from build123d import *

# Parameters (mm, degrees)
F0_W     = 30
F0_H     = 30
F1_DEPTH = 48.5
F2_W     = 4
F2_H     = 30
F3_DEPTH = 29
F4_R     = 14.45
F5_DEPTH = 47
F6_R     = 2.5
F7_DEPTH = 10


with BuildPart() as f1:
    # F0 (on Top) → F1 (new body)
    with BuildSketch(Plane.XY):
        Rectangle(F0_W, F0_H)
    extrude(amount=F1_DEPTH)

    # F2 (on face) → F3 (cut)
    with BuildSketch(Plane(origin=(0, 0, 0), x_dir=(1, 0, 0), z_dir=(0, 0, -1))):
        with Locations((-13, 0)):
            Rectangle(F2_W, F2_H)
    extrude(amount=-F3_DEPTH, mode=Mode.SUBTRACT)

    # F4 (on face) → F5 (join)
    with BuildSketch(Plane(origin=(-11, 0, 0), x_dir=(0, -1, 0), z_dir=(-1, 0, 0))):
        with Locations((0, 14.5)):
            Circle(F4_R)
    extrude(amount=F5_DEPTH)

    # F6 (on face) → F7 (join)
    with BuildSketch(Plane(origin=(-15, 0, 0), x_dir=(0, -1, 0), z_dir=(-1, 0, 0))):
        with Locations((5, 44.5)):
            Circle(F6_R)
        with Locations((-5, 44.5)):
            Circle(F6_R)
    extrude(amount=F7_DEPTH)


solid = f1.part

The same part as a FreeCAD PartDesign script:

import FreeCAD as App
import Part
import Sketcher

V = App.Vector
Q = App.Units.Quantity

doc = App.newDocument("Part")
body = doc.addObject("PartDesign::Body", "Body")

# Sketch on XY plane
sketch1 = doc.addObject("Sketcher::SketchObject", "Sketch")
body.addObject(sketch1)
sketch1.AttachmentSupport = (doc.XY_Plane, [""])
sketch1.MapMode = "FlatFace"
sketch1.addGeometry(Part.LineSegment(V(-15, 15, 0), V(-15, -15, 0)), False)
sketch1.addGeometry(Part.LineSegment(V(-15, -15, 0), V(15, -15, 0)), False)
sketch1.addGeometry(Part.LineSegment(V(15, -15, 0), V(15, 15, 0)), False)
sketch1.addGeometry(Part.LineSegment(V(15, 15, 0), V(-15, 15, 0)), False)
sketch1.addConstraint(Sketcher.Constraint("Coincident", 0, 2, 1, 1))
sketch1.addConstraint(Sketcher.Constraint("Coincident", 1, 2, 2, 1))
sketch1.addConstraint(Sketcher.Constraint("Coincident", 2, 2, 3, 1))
sketch1.addConstraint(Sketcher.Constraint("Coincident", 3, 2, 0, 1))
sketch1.addConstraint(Sketcher.Constraint("Vertical", 0))
sketch1.addConstraint(Sketcher.Constraint("Horizontal", 1))
sketch1.addConstraint(Sketcher.Constraint("Vertical", 2))
sketch1.addConstraint(Sketcher.Constraint("Horizontal", 3))
sketch1.addConstraint(Sketcher.Constraint("Symmetric", 0, 2, 2, 2, -1, 1))
sketch1.addConstraint(Sketcher.Constraint("Equal", 3, 0))
sketch1.addConstraint(Sketcher.Constraint("DistanceX", 1, 1, 1, 2, Q("30 mm")))
pad1 = doc.addObject("PartDesign::Pad", "Pad")
body.addObject(pad1)
pad1.Profile = sketch1
pad1.Length = 48.5

# Sketch on XY plane
sketch2 = doc.addObject("Sketcher::SketchObject", "Sketch001")
body.addObject(sketch2)
sketch2.AttachmentSupport = (doc.XY_Plane, [""])
sketch2.MapMode = "FlatFace"
sketch2.addGeometry(Part.LineSegment(V(-15, -15, 0), V(-15, 15, 0)), False)
sketch2.addGeometry(Part.LineSegment(V(-15, 15, 0), V(-11, 15, 0)), False)
sketch2.addGeometry(Part.LineSegment(V(-11, 15, 0), V(-11, -15, 0)), False)
sketch2.addGeometry(Part.LineSegment(V(-11, -15, 0), V(-15, -15, 0)), False)
sketch2.addConstraint(Sketcher.Constraint("Coincident", 0, 2, 1, 1))
sketch2.addConstraint(Sketcher.Constraint("Coincident", 1, 2, 2, 1))
sketch2.addConstraint(Sketcher.Constraint("Coincident", 2, 2, 3, 1))
sketch2.addConstraint(Sketcher.Constraint("Coincident", 3, 2, 0, 1))
sketch2.addConstraint(Sketcher.Constraint("Vertical", 0))
sketch2.addConstraint(Sketcher.Constraint("Horizontal", 1))
sketch2.addConstraint(Sketcher.Constraint("Vertical", 2))
sketch2.addConstraint(Sketcher.Constraint("Horizontal", 3))
sketch2.addConstraint(Sketcher.Constraint("DistanceX", 1, 1, 1, 2, Q("4 mm")))
sketch2.addConstraint(Sketcher.Constraint("DistanceY", 0, 1, 0, 2, Q("30 mm")))
sketch2.addConstraint(Sketcher.Constraint("DistanceX", 0, 2, -1, 1, Q("15 mm")))
sketch2.addConstraint(Sketcher.Constraint("DistanceY", -1, 1, 0, 2, Q("15 mm")))
pocket1 = doc.addObject("PartDesign::Pocket", "Pocket")
body.addObject(pocket1)
pocket1.Profile = sketch2
pocket1.Length = 29
pocket1.Reversed = True

# Sketch on YZ plane
sketch3 = doc.addObject("Sketcher::SketchObject", "Sketch002")
body.addObject(sketch3)
sketch3.AttachmentSupport = (doc.YZ_Plane, [""])
sketch3.MapMode = "FlatFace"
sketch3.AttachmentOffset = App.Placement(V(0, 0, -11), App.Rotation())
sketch3.addGeometry(Part.Circle(V(0, 14.5, 0), V(0, 0, 1), 14.45), False)
sketch3.addConstraint(Sketcher.Constraint("PointOnObject", 0, 3, -2))
sketch3.addConstraint(Sketcher.Constraint("Diameter", 0, Q("28.9 mm")))
sketch3.addConstraint(Sketcher.Constraint("DistanceY", -1, 1, 0, 3, Q("14.5 mm")))
pad2 = doc.addObject("PartDesign::Pad", "Pad001")
body.addObject(pad2)
pad2.Profile = sketch3
pad2.Length = 47
pad2.Reversed = True

# Sketch on YZ plane
sketch4 = doc.addObject("Sketcher::SketchObject", "Sketch003")
body.addObject(sketch4)
sketch4.AttachmentSupport = (doc.YZ_Plane, [""])
sketch4.MapMode = "FlatFace"
sketch4.AttachmentOffset = App.Placement(V(0, 0, -15), App.Rotation())
sketch4.addGeometry(Part.Circle(V(-5, 44.5, 0), V(0, 0, 1), 2.5), False)
sketch4.addGeometry(Part.Circle(V(5, 44.5, 0), V(0, 0, 1), 2.5), False)
sketch4.addConstraint(Sketcher.Constraint("Equal", 0, 1))
sketch4.addConstraint(Sketcher.Constraint("Symmetric", 0, 3, 1, 3, -2))
sketch4.addConstraint(Sketcher.Constraint("Diameter", 0, Q("5 mm")))
sketch4.addConstraint(Sketcher.Constraint("DistanceX", 0, 3, -1, 1, Q("5 mm")))
sketch4.addConstraint(Sketcher.Constraint("DistanceY", -1, 1, 0, 3, Q("44.5 mm")))
pad3 = doc.addObject("PartDesign::Pad", "Pad002")
body.addObject(pad3)
pad3.Profile = sketch4
pad3.Length = 10
pad3.Reversed = True

doc.recompute()
